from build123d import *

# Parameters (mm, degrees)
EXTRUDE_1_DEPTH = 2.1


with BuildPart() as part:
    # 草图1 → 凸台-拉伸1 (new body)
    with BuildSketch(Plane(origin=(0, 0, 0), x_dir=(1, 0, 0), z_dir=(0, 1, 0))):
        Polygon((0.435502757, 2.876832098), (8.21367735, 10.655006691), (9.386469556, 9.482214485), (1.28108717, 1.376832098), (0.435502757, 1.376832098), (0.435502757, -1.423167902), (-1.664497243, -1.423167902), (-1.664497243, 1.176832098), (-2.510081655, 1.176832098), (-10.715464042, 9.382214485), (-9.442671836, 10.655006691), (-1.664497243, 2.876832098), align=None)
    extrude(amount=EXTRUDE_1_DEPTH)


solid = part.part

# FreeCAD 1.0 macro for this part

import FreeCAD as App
import Part
import Sketcher
from FreeCAD import Vector
Q = App.Units.Quantity

doc = App.newDocument("Part")
body = doc.addObject("PartDesign::Body", "Body")

# Sketch on XZ plane
sketch1 = body.newObject("Sketcher::SketchObject", "Sketch")
sketch1.AttachmentSupport = (doc.getObject("XZ_Plane"), [""])
sketch1.MapMode = "FlatFace"
sketch1.addGeometry(Part.LineSegment(Vector(8.2, -10.7, 0), Vector(0.4, -2.9, 0)), False)
sketch1.addGeometry(Part.LineSegment(Vector(0.4, -2.9, 0), Vector(-1.7, -2.9, 0)), False)
sketch1.addGeometry(Part.LineSegment(Vector(-1.7, -2.9, 0), Vector(-9.4, -10.7, 0)), False)
sketch1.addGeometry(Part.LineSegment(Vector(-9.4, -10.7, 0), Vector(-10.7, -9.4, 0)), False)
sketch1.addGeometry(Part.LineSegment(Vector(-10.7, -9.4, 0), Vector(-2.5, -1.2, 0)), False)
sketch1.addGeometry(Part.LineSegment(Vector(-2.5, -1.2, 0), Vector(-1.7, -1.2, 0)), False)
sketch1.addGeometry(Part.LineSegment(Vector(-1.7, -1.2, 0), Vector(-1.7, 1.4, 0)), False)
sketch1.addGeometry(Part.LineSegment(Vector(-1.7, 1.4, 0), Vector(0.4, 1.4, 0)), False)
sketch1.addGeometry(Part.LineSegment(Vector(0.4, 1.4, 0), Vector(0.4, -1.4, 0)), False)
sketch1.addGeometry(Part.LineSegment(Vector(0.4, -1.4, 0), Vector(1.3, -1.4, 0)), False)
sketch1.addGeometry(Part.LineSegment(Vector(1.3, -1.4, 0), Vector(9.4, -9.5, 0)), False)
sketch1.addGeometry(Part.LineSegment(Vector(9.4, -9.5, 0), Vector(8.2, -10.7, 0)), False)
sketch1.addConstraint(Sketcher.Constraint("Coincident", 0, 2, 1, 1))
sketch1.addConstraint(Sketcher.Constraint("Coincident", 1, 2, 2, 1))
sketch1.addConstraint(Sketcher.Constraint("Coincident", 2, 2, 3, 1))
sketch1.addConstraint(Sketcher.Constraint("Coincident", 3, 2, 4, 1))
sketch1.addConstraint(Sketcher.Constraint("Coincident", 4, 2, 5, 1))
sketch1.addConstraint(Sketcher.Constraint("Coincident", 5, 2, 6, 1))
sketch1.addConstraint(Sketcher.Constraint("Coincident", 6, 2, 7, 1))
sketch1.addConstraint(Sketcher.Constraint("Coincident", 7, 2, 8, 1))
sketch1.addConstraint(Sketcher.Constraint("Coincident", 8, 2, 9, 1))
sketch1.addConstraint(Sketcher.Constraint("Coincident", 9, 2, 10, 1))
sketch1.addConstraint(Sketcher.Constraint("Coincident", 10, 2, 11, 1))
sketch1.addConstraint(Sketcher.Constraint("Coincident", 11, 2, 0, 1))
sketch1.addConstraint(Sketcher.Constraint("Horizontal", 1))
sketch1.addConstraint(Sketcher.Constraint("Horizontal", 5))
sketch1.addConstraint(Sketcher.Constraint("Vertical", 6))
sketch1.addConstraint(Sketcher.Constraint("Horizontal", 7))
sketch1.addConstraint(Sketcher.Constraint("Vertical", 8))
sketch1.addConstraint(Sketcher.Constraint("Horizontal", 9))
sketch1.addConstraint(Sketcher.Constraint("Perpendicular", 0, 2))
sketch1.addConstraint(Sketcher.Constraint("Perpendicular", 2, 3))
sketch1.addConstraint(Sketcher.Constraint("Perpendicular", 3, 4))
sketch1.addConstraint(Sketcher.Constraint("Perpendicular", 4, 10))
sketch1.addConstraint(Sketcher.Constraint("Perpendicular", 10, 11))
sketch1.addConstraint(Sketcher.Constraint("Horizontal", 2, 2, 11, 2))
sketch1.addConstraint(Sketcher.Constraint("Vertical", 1, 2, 5, 2))
sketch1.addConstraint(Sketcher.Constraint("Vertical", 0, 2, 7, 2))
sketch1.addConstraint(Sketcher.Constraint("Equal", 5, 9))
sketch1.addConstraint(Sketcher.Constraint("Equal", 0, 2))
sketch1.addConstraint(Sketcher.Constraint("Distance", 0, Q("11 mm")))
sketch1.addConstraint(Sketcher.Constraint("DistanceX", 1, 2, 1, 1, Q("2.1 mm")))
sketch1.addConstraint(Sketcher.Constraint("DistanceY", 6, 1, 6, 2, Q("2.6 mm")))
sketch1.addConstraint(Sketcher.Constraint("DistanceY", 8, 2, 8, 1, Q("2.8 mm")))
sketch1.addConstraint(Sketcher.Constraint("Distance", 3, Q("1.8 mm")))
sketch1.addConstraint(Sketcher.Constraint("DistanceY", 1, 2, 4, 2, Q("1.7 mm")))
sketch1.addConstraint(Sketcher.Constraint("DistanceX", 2, 2, -1, 1, Q("9.442672 mm")))
sketch1.addConstraint(Sketcher.Constraint("DistanceY", 0, 2, -1, 1, Q("2.876832 mm")))
pad1 = body.newObject("PartDesign::Pad", "Pad")
pad1.Profile = sketch1
pad1.Length = 2.1
pad1.Reversed = True

doc.recompute()
